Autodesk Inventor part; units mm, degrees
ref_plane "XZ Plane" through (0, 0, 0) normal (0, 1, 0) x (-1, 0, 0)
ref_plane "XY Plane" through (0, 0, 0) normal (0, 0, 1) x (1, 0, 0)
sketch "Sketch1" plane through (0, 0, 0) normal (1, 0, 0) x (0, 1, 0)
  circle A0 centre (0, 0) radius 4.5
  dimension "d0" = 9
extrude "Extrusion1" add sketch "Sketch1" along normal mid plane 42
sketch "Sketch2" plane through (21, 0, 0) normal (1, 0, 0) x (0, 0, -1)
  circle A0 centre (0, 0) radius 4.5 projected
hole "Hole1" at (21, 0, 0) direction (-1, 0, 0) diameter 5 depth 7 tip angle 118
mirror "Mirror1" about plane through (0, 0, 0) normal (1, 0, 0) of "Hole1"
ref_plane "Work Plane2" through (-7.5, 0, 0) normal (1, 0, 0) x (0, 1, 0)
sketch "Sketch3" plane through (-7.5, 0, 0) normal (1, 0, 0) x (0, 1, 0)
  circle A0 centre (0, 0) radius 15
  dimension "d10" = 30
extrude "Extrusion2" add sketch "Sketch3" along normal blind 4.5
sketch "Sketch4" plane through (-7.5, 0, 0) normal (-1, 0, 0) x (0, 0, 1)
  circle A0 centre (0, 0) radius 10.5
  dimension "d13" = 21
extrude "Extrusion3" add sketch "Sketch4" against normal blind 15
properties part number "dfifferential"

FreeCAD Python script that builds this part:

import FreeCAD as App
import Part
import Sketcher
from FreeCAD import Vector

doc = App.newDocument("Part")
body = doc.addObject("PartDesign::Body", "Body")

# Sketch on YZ plane
sketch1 = doc.addObject("Sketcher::SketchObject", "Sketch")
body.addObject(sketch1)
sketch1.AttachmentSupport = (doc.YZ_Plane, [""])
sketch1.MapMode = "FlatFace"
sketch1.addGeometry(Part.Circle(Vector(0, 0, 0), Vector(0, 0, 1), 4.5), False)
sketch1.addConstraint([
    Sketcher.Constraint("Coincident", 0, 3, -1, 1),
    Sketcher.Constraint("Diameter", 0, 9.0),
])
pad1 = doc.addObject("PartDesign::Pad", "Pad")
body.addObject(pad1)
pad1.Profile = sketch1
pad1.Length = 42
pad1.Midplane = True

# Sketch on YZ plane
sketch2 = doc.addObject("Sketcher::SketchObject", "Sketch001")
body.addObject(sketch2)
sketch2.AttachmentSupport = (doc.YZ_Plane, [""])
sketch2.MapMode = "FlatFace"
sketch2.AttachmentOffset = App.Placement(Vector(0, 0, 21), App.Rotation())
sketch2.addGeometry(Part.Circle(Vector(0, 0, 0), Vector(0, 0, 1), 2.5), False)
sketch2.addConstraint([
    Sketcher.Constraint("Coincident", 0, 3, -1, 1),
    Sketcher.Constraint("Diameter", 0, 5.0),
])
doc.recompute()
hole = doc.addObject("PartDesign::Hole", "Hole")
body.addObject(hole)
hole.Profile = sketch2
hole.ThreadType = "None"
hole.Diameter = 5
hole.DepthType = "Dimension"
hole.Depth = 7
hole.DrillPoint = "Angled"
hole.DrillPointAngle = 118
doc.recompute()

mirrored = doc.addObject("PartDesign::Mirrored", "Mirrored")
body.addObject(mirrored)
mirrored.Originals = [hole]
mirrored.MirrorPlane = (doc.YZ_Plane, [""])
body.Tip = mirrored

# Sketch on YZ plane
sketch3 = doc.addObject("Sketcher::SketchObject", "Sketch002")
body.addObject(sketch3)
sketch3.AttachmentSupport = (doc.YZ_Plane, [""])
sketch3.MapMode = "FlatFace"
sketch3.AttachmentOffset = App.Placement(Vector(0, 0, -7.5), App.Rotation())
sketch3.addGeometry(Part.Circle(Vector(0, 0, 0), Vector(0, 0, 1), 15), False)
sketch3.addConstraint([
    Sketcher.Constraint("Coincident", 0, 3, -1, 1),
    Sketcher.Constraint("Diameter", 0, 30.0),
])
pad2 = doc.addObject("PartDesign::Pad", "Pad001")
body.addObject(pad2)
pad2.Profile = sketch3
pad2.Length = 4.5

# Sketch on YZ plane
sketch4 = doc.addObject("Sketcher::SketchObject", "Sketch003")
body.addObject(sketch4)
sketch4.AttachmentSupport = (doc.YZ_Plane, [""])
sketch4.MapMode = "FlatFace"
sketch4.AttachmentOffset = App.Placement(Vector(0, 0, -7.5), App.Rotation())
sketch4.addGeometry(Part.Circle(Vector(0, 0, 0), Vector(0, 0, 1), 10.5), False)
sketch4.addConstraint([
    Sketcher.Constraint("Coincident", 0, 3, -1, 1),
    Sketcher.Constraint("Diameter", 0, 21.0),
])
pad3 = doc.addObject("PartDesign::Pad", "Pad002")
body.addObject(pad3)
pad3.Profile = sketch4
pad3.Length = 15

doc.recompute()
